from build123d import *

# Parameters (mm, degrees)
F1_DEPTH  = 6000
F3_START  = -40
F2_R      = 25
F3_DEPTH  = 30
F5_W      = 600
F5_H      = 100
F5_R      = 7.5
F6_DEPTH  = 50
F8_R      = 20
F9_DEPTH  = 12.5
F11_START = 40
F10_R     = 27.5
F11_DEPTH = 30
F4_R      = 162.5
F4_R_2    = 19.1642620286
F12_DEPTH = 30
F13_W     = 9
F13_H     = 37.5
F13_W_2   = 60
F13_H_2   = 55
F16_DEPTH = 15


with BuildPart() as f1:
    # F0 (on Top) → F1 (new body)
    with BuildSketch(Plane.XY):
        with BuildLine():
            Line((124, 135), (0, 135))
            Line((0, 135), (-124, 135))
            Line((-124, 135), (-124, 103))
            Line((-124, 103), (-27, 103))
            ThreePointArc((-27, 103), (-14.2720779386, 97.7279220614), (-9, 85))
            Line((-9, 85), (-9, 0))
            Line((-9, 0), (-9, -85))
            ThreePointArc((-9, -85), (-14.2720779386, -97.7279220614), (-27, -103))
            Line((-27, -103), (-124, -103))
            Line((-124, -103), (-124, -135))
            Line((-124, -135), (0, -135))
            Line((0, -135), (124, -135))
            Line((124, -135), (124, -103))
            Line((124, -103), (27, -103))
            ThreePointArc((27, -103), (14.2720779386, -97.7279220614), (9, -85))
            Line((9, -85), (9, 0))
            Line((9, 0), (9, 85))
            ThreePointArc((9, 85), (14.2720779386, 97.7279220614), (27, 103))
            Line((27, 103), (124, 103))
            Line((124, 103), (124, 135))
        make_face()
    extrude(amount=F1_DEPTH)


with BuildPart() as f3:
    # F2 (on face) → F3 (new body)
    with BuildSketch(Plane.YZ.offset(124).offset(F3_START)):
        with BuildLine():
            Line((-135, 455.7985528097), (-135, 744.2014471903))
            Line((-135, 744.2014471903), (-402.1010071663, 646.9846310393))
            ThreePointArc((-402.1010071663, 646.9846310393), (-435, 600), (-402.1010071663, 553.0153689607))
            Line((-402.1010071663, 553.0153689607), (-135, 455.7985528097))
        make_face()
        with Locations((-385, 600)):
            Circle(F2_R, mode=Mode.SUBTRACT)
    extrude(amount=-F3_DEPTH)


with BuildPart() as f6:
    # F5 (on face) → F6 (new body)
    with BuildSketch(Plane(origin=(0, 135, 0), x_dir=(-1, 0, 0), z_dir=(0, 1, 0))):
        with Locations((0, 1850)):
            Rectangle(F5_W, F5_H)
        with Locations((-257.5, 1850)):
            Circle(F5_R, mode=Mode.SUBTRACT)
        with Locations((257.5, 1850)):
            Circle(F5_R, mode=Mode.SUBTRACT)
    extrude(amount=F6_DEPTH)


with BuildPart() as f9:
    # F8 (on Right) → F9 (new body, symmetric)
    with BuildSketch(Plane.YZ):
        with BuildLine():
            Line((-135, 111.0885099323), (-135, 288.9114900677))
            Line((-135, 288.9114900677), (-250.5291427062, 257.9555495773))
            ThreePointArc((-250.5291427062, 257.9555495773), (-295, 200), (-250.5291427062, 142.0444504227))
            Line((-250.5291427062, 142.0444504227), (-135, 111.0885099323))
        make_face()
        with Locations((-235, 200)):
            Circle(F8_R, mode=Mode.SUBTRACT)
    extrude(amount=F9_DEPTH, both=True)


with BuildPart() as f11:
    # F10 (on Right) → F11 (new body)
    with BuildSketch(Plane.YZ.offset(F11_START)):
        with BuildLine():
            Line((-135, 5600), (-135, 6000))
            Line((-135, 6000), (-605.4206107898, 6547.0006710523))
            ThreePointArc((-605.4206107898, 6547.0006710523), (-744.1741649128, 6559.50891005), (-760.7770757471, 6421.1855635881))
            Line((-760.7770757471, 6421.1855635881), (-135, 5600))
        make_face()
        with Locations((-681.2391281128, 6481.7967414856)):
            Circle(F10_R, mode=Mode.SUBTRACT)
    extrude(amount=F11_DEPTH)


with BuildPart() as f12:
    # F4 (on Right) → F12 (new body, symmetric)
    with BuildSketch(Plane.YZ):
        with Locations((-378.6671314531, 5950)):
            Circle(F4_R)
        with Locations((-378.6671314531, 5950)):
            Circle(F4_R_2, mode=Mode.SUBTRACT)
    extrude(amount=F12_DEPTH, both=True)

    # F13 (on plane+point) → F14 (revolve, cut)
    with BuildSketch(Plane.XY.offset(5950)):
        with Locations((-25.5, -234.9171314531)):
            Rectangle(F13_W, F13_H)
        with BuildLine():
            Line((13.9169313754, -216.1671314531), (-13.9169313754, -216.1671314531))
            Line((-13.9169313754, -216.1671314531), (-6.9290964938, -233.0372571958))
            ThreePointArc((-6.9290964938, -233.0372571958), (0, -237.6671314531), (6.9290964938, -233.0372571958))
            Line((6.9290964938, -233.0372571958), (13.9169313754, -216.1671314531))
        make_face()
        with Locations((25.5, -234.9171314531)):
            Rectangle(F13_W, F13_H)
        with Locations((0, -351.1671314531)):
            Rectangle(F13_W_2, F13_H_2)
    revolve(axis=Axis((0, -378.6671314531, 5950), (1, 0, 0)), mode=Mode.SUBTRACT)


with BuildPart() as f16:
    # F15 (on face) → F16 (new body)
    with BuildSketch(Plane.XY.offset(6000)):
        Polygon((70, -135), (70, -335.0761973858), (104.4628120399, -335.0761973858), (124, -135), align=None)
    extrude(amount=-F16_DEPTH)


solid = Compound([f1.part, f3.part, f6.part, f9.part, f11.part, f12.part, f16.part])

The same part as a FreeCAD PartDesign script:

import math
import FreeCAD as App
import Part
import Sketcher

V = App.Vector
Q = App.Units.Quantity

doc = App.newDocument("Part")
body = doc.addObject("PartDesign::Body", "Body")

# Sketch on XY plane
sketch1 = body.newObject("Sketcher::SketchObject", "Sketch")
sketch1.AttachmentSupport = (doc.getObject("XY_Plane"), [""])
sketch1.MapMode = "FlatFace"
sketch1.addGeometry([
    Part.LineSegment(V(124, 135, 0), V(-124, 135, 0)),  # 0
    Part.LineSegment(V(-124, 135, 0), V(-124, 103, 0)),  # 1
    Part.LineSegment(V(-124, 103, 0), V(-27, 103, 0)),  # 2
    Part.ArcOfCircle(Part.Circle(V(-27, 85, 0), V(0, 0, 1), 18), math.radians(0), math.radians(90)),  # 3
    Part.LineSegment(V(-9, 85, 0), V(-9, -85, 0)),  # 4
    Part.ArcOfCircle(Part.Circle(V(-27, -85, 0), V(0, 0, 1), 18), math.radians(-90), math.radians(0)),  # 5
    Part.LineSegment(V(-27, -103, 0), V(-124, -103, 0)),  # 6
    Part.LineSegment(V(-124, -103, 0), V(-124, -135, 0)),  # 7
    Part.LineSegment(V(-124, -135, 0), V(124, -135, 0)),  # 8
    Part.LineSegment(V(124, -135, 0), V(124, -103, 0)),  # 9
    Part.LineSegment(V(124, -103, 0), V(27, -103, 0)),  # 10
    Part.ArcOfCircle(Part.Circle(V(27, -85, 0), V(0, 0, 1), 18), math.radians(180), math.radians(270)),  # 11
    Part.LineSegment(V(9, -85, 0), V(9, 85, 0)),  # 12
    Part.ArcOfCircle(Part.Circle(V(27, 85, 0), V(0, 0, 1), 18), math.radians(90), math.radians(180)),  # 13
    Part.LineSegment(V(27, 103, 0), V(124, 103, 0)),  # 14
    Part.LineSegment(V(124, 103, 0), V(124, 135, 0)),  # 15
], False)
sketch1.addConstraint([
    Sketcher.Constraint("Coincident", 0, 2, 1, 1),
    Sketcher.Constraint("Coincident", 1, 2, 2, 1),
    Sketcher.Constraint("Tangent", 2, 2, 3, 2),
    Sketcher.Constraint("Tangent", 3, 1, 4, 1),
    Sketcher.Constraint("Tangent", 4, 2, 5, 2),
    Sketcher.Constraint("Tangent", 5, 1, 6, 1),
    Sketcher.Constraint("Coincident", 6, 2, 7, 1),
    Sketcher.Constraint("Coincident", 7, 2, 8, 1),
    Sketcher.Constraint("Coincident", 8, 2, 9, 1),
    Sketcher.Constraint("Coincident", 9, 2, 10, 1),
    Sketcher.Constraint("Tangent", 10, 2, 11, 2),
    Sketcher.Constraint("Tangent", 11, 1, 12, 1),
    Sketcher.Constraint("Tangent", 12, 2, 13, 2),
    Sketcher.Constraint("Tangent", 13, 1, 14, 1),
    Sketcher.Constraint("Coincident", 14, 2, 15, 1),
    Sketcher.Constraint("Coincident", 15, 2, 0, 1),
    Sketcher.Constraint("Horizontal", 0),
    Sketcher.Constraint("Vertical", 1),
    Sketcher.Constraint("Horizontal", 2),
    Sketcher.Constraint("Vertical", 4),
    Sketcher.Constraint("Horizontal", 6),
    Sketcher.Constraint("Vertical", 7),
    Sketcher.Constraint("Horizontal", 8),
    Sketcher.Constraint("Vertical", 9),
    Sketcher.Constraint("Horizontal", 10),
    Sketcher.Constraint("Vertical", 12),
    Sketcher.Constraint("Horizontal", 14),
    Sketcher.Constraint("Vertical", 15),
    Sketcher.Constraint("Equal", 3, 5),
    Sketcher.Constraint("Equal", 5, 11),
    Sketcher.Constraint("Equal", 11, 13),
    Sketcher.Constraint("Symmetric", 3, 3, 11, 3, -1, 1),
    Sketcher.Constraint("Symmetric", 0, 2, 8, 2, -1, 1),
    Sketcher.Constraint("Symmetric", 6, 2, 14, 2, -1, 1),
    Sketcher.Constraint("Symmetric", 6, 2, 9, 2, -2),
    Sketcher.Constraint("Radius", 3, 18.0),
    Sketcher.Constraint("DistanceX", 0, 2, 0, 1, 248.0),
    Sketcher.Constraint("DistanceX", 2, 1, 2, 2, 97.0),
    Sketcher.Constraint("DistanceY", 1, 2, 1, 1, 32.0),
    Sketcher.Constraint("DistanceY", 4, 2, 4, 1, 170.0),
])
pad1 = body.newObject("PartDesign::Pad", "Pad")
pad1.Profile = sketch1
pad1.Length = 6000
body2 = doc.addObject("PartDesign::Body", "Body001")

# Sketch on YZ plane
sketch2 = body2.newObject("Sketcher::SketchObject", "Sketch001")
sketch2.AttachmentSupport = (doc.getObject("YZ_Plane001"), [""])
sketch2.MapMode = "FlatFace"
sketch2.AttachmentOffset = App.Placement(V(0, 0, 84), App.Rotation())
sketch2.addGeometry([
    Part.LineSegment(V(-135, 456, 0), V(-135, 744, 0)),  # 0
    Part.LineSegment(V(-135, 744, 0), V(-402, 647, 0)),  # 1
    Part.ArcOfCircle(Part.Circle(V(-385, 600, 0), V(0, 0, 1), 50), math.radians(110), math.radians(250)),  # 2
    Part.LineSegment(V(-402, 553, 0), V(-135, 456, 0)),  # 3
    Part.Circle(V(-385, 600, 0), V(0, 0, 1), 25),  # 4
], False)
sketch2.addConstraint([
    Sketcher.Constraint("Coincident", 0, 2, 1, 1),
    Sketcher.Constraint("Tangent", 1, 2, 2, 1),
    Sketcher.Constraint("Tangent", 2, 2, 3, 1),
    Sketcher.Constraint("Coincident", 3, 2, 0, 1),
    Sketcher.Constraint("Vertical", 0),
    Sketcher.Constraint("Coincident", 4, 3, 2, 3),
    Sketcher.Constraint("Vertical", 1, 2, 2, 2),
    Sketcher.Constraint("Diameter", 4, 50.0),
    Sketcher.Constraint("Radius", 2, 50.0),
    Sketcher.Constraint("Angle", 1, Q("-160 deg")),
    Sketcher.Constraint("DistanceX", 2, 3, -1, 1, 385.0),
    Sketcher.Constraint("DistanceY", -1, 1, 2, 3, 600.0),
    Sketcher.Constraint("DistanceX", 0, 2, -1, 1, 135.0),
])
pad2 = body2.newObject("PartDesign::Pad", "Pad001")
pad2.Profile = sketch2
pad2.Length = 30
pad2.Reversed = True
body3 = doc.addObject("PartDesign::Body", "Body002")

# Sketch on XZ plane
sketch3 = body3.newObject("Sketcher::SketchObject", "Sketch002")
sketch3.AttachmentSupport = (doc.getObject("XZ_Plane002"), [""])
sketch3.MapMode = "FlatFace"
sketch3.AttachmentOffset = App.Placement(V(0, 0, -135), App.Rotation())
sketch3.addGeometry([
    Part.LineSegment(V(300, 1900, 0), V(300, 1800, 0)),  # 0
    Part.LineSegment(V(300, 1800, 0), V(-300, 1800, 0)),  # 1
    Part.LineSegment(V(-300, 1800, 0), V(-300, 1900, 0)),  # 2
    Part.LineSegment(V(-300, 1900, 0), V(300, 1900, 0)),  # 3
    Part.Circle(V(258, 1850, 0), V(0, 0, 1), 8),  # 4
    Part.Circle(V(-258, 1850, 0), V(0, 0, 1), 8),  # 5
], False)
sketch3.addConstraint([
    Sketcher.Constraint("Coincident", 0, 2, 1, 1),
    Sketcher.Constraint("Coincident", 1, 2, 2, 1),
    Sketcher.Constraint("Coincident", 2, 2, 3, 1),
    Sketcher.Constraint("Coincident", 3, 2, 0, 1),
    Sketcher.Constraint("Vertical", 0),
    Sketcher.Constraint("Horizontal", 1),
    Sketcher.Constraint("Vertical", 2),
    Sketcher.Constraint("Horizontal", 3),
    Sketcher.Constraint("Equal", 4, 5),
    Sketcher.Constraint("Symmetric", 4, 3, 5, 3, -2),
    Sketcher.Constraint("Diameter", 4, 15.0),
    Sketcher.Constraint("DistanceX", 1, 2, 1, 1, 600.0),
    Sketcher.Constraint("DistanceY", 0, 2, 0, 1, 100.0),
    Sketcher.Constraint("DistanceY", -1, 1, 4, 3, 1850.0),
    Sketcher.Constraint("DistanceX", -1, 1, 0, 2, 300.0),
    Sketcher.Constraint("DistanceY", -1, 1, 0, 2, 1800.0),
    Sketcher.Constraint("DistanceX", 5, 3, 4, 3, 515.0),
])
pad3 = body3.newObject("PartDesign::Pad", "Pad002")
pad3.Profile = sketch3
pad3.Length = 50
pad3.Reversed = True
body4 = doc.addObject("PartDesign::Body", "Body003")

# Sketch on YZ plane
sketch4 = body4.newObject("Sketcher::SketchObject", "Sketch003")
sketch4.AttachmentSupport = (doc.getObject("YZ_Plane003"), [""])
sketch4.MapMode = "FlatFace"
sketch4.addGeometry([
    Part.LineSegment(V(-135, 111, 0), V(-135, 289, 0)),  # 0
    Part.LineSegment(V(-135, 289, 0), V(-251, 258, 0)),  # 1
    Part.ArcOfCircle(Part.Circle(V(-235, 200, 0), V(0, 0, 1), 60), math.radians(105), math.radians(255)),  # 2
    Part.LineSegment(V(-251, 142, 0), V(-135, 111, 0)),  # 3
    Part.Circle(V(-235, 200, 0), V(0, 0, 1), 20),  # 4
], False)
sketch4.addConstraint([
    Sketcher.Constraint("Coincident", 0, 2, 1, 1),
    Sketcher.Constraint("Tangent", 1, 2, 2, 1),
    Sketcher.Constraint("Tangent", 2, 2, 3, 1),
    Sketcher.Constraint("Coincident", 3, 2, 0, 1),
    Sketcher.Constraint("Vertical", 0),
    Sketcher.Constraint("Coincident", 4, 3, 2, 3),
    Sketcher.Constraint("Vertical", 1, 2, 2, 2),
    Sketcher.Constraint("Diameter", 4, 40.0),
    Sketcher.Constraint("Radius", 2, 60.0),
    Sketcher.Constraint("Angle", 1, Q("-165 deg")),
    Sketcher.Constraint("DistanceX", 2, 3, -1, 1, 235.0),
    Sketcher.Constraint("DistanceY", -1, 1, 2, 3, 200.0),
    Sketcher.Constraint("DistanceX", 0, 2, -1, 1, 135.0),
])
pad4 = body4.newObject("PartDesign::Pad", "Pad003")
pad4.Profile = sketch4
pad4.Length = 25
pad4.Midplane = True
body5 = doc.addObject("PartDesign::Body", "Body004")

# Sketch on YZ plane
sketch5 = body5.newObject("Sketcher::SketchObject", "Sketch004")
sketch5.AttachmentSupport = (doc.getObject("YZ_Plane004"), [""])
sketch5.MapMode = "FlatFace"
sketch5.AttachmentOffset = App.Placement(V(0, 0, 40), App.Rotation())
sketch5.addGeometry([
    Part.LineSegment(V(-135, 5600, 0), V(-135, 6000, 0)),  # 0
    Part.LineSegment(V(-135, 6000, 0), V(-605, 6547, 0)),  # 1
    Part.ArcOfCircle(Part.Circle(V(-681, 6482, 0), V(0, 0, 1), 100), math.radians(41), math.radians(217)),  # 2
    Part.LineSegment(V(-761, 6421, 0), V(-135, 5600, 0)),  # 3
    Part.Circle(V(-681, 6482, 0), V(0, 0, 1), 28),  # 4
], False)
sketch5.addConstraint([
    Sketcher.Constraint("Coincident", 0, 2, 1, 1),
    Sketcher.Constraint("Tangent", 1, 2, 2, 1),
    Sketcher.Constraint("Tangent", 2, 2, 3, 1),
    Sketcher.Constraint("Coincident", 3, 2, 0, 1),
    Sketcher.Constraint("Vertical", 0),
    Sketcher.Constraint("Coincident", 4, 3, 2, 3),
    Sketcher.Constraint("Diameter", 4, 55.0),
    Sketcher.Constraint("Radius", 2, 100.0),
    Sketcher.Constraint("DistanceY", 0, 1, 0, 2, 400.0),
    Sketcher.Constraint("DistanceX", 0, 2, -1, 1, 135.0),
    Sketcher.Constraint("DistanceY", -1, 1, 0, 2, 6000.0),
    Sketcher.Constraint("Distance", 3, 1032.445),
    Sketcher.Constraint("DistanceX", 2, 3, -1, 1, 681.239128),
])
pad5 = body5.newObject("PartDesign::Pad", "Pad004")
pad5.Profile = sketch5
pad5.Length = 30
body6 = doc.addObject("PartDesign::Body", "Body005")

# Sketch on YZ plane
sketch6 = body6.newObject("Sketcher::SketchObject", "Sketch005")
sketch6.AttachmentSupport = (doc.getObject("YZ_Plane005"), [""])
sketch6.MapMode = "FlatFace"
sketch6.addGeometry([
    Part.Circle(V(-379, 5950, 0), V(0, 0, 1), 162),
    Part.Circle(V(-379, 5950, 0), V(0, 0, 1), 19),
], False)
sketch6.addConstraint([
    Sketcher.Constraint("Coincident", 1, 3, 0, 3),
    Sketcher.Constraint("Diameter", 0, 325.0),
    Sketcher.Constraint("DistanceY", -1, 1, 0, 3, 5950.0),
    Sketcher.Constraint("Diameter", 1, 38.328524),
    Sketcher.Constraint("DistanceX", 0, 3, -1, 1, 378.667131),
])
pad6 = body6.newObject("PartDesign::Pad", "Pad005")
pad6.Profile = sketch6
pad6.Length = 60
pad6.Midplane = True

# Sketch on XY plane
sketch7 = body6.newObject("Sketcher::SketchObject", "Sketch006")
sketch7.AttachmentSupport = (doc.getObject("XY_Plane005"), [""])
sketch7.MapMode = "FlatFace"
sketch7.AttachmentOffset = App.Placement(V(0, 0, 5950), App.Rotation())
sketch7.addGeometry([
    Part.LineSegment(V(-30, -216, 0), V(-30, -254, 0)),  # 0
    Part.LineSegment(V(-30, -254, 0), V(-21, -254, 0)),  # 1
    Part.LineSegment(V(-21, -254, 0), V(-21, -216, 0)),  # 2
    Part.LineSegment(V(-21, -216, 0), V(-30, -216, 0)),  # 3
    Part.LineSegment(V(14, -216, 0), V(-14, -216, 0)),  # 4
    Part.LineSegment(V(-14, -216, 0), V(-7, -233, 0)),  # 5
    Part.ArcOfCircle(Part.Circle(V(0, -230, 0), V(0, 0, 1), 8), math.radians(-157), math.radians(-23)),  # 6
    Part.LineSegment(V(7, -233, 0), V(14, -216, 0)),  # 7
    Part.LineSegment(V(21, -216, 0), V(21, -254, 0)),  # 8
    Part.LineSegment(V(21, -254, 0), V(30, -254, 0)),  # 9
    Part.LineSegment(V(30, -254, 0), V(30, -216, 0)),  # 10
    Part.LineSegment(V(30, -216, 0), V(21, -216, 0)),  # 11
    Part.LineSegment(V(-30, -324, 0), V(-30, -379, 0)),  # 12
    Part.LineSegment(V(-30, -379, 0), V(30, -379, 0)),  # 13
    Part.LineSegment(V(30, -379, 0), V(30, -324, 0)),  # 14
    Part.LineSegment(V(30, -324, 0), V(-30, -324, 0)),  # 15
], False)
sketch7.addGeometry(Part.LineSegment(V(-30, -379, 0), V(30, -379, 0)), True)  # axis
sketch7.addConstraint([
    Sketcher.Constraint("Coincident", 0, 2, 1, 1),
    Sketcher.Constraint("Coincident", 1, 2, 2, 1),
    Sketcher.Constraint("Coincident", 2, 2, 3, 1),
    Sketcher.Constraint("Coincident", 3, 2, 0, 1),
    Sketcher.Constraint("Coincident", 4, 2, 5, 1),
    Sketcher.Constraint("Tangent", 5, 2, 6, 1),
    Sketcher.Constraint("Tangent", 6, 2, 7, 1),
    Sketcher.Constraint("Coincident", 7, 2, 4, 1),
    Sketcher.Constraint("Coincident", 8, 2, 9, 1),
    Sketcher.Constraint("Coincident", 9, 2, 10, 1),
    Sketcher.Constraint("Coincident", 10, 2, 11, 1),
    Sketcher.Constraint("Coincident", 11, 2, 8, 1),
    Sketcher.Constraint("Coincident", 12, 2, 13, 1),
    Sketcher.Constraint("Coincident", 13, 2, 14, 1),
    Sketcher.Constraint("Coincident", 14, 2, 15, 1),
    Sketcher.Constraint("Coincident", 15, 2, 12, 1),
    Sketcher.Constraint("Vertical", 0),
    Sketcher.Constraint("Horizontal", 1),
    Sketcher.Constraint("Vertical", 2),
    Sketcher.Constraint("Horizontal", 3),
    Sketcher.Constraint("Horizontal", 4),
    Sketcher.Constraint("Vertical", 8),
    Sketcher.Constraint("Horizontal", 9),
    Sketcher.Constraint("Vertical", 10),
    Sketcher.Constraint("Horizontal", 11),
    Sketcher.Constraint("Vertical", 12),
    Sketcher.Constraint("Horizontal", 13),
    Sketcher.Constraint("Vertical", 14),
    Sketcher.Constraint("Horizontal", 15),
    Sketcher.Constraint("Horizontal", 16),
    Sketcher.Constraint("Coincident", 16, 1, 12, 2),
    Sketcher.Constraint("Symmetric", 5, 2, 6, 2, -2),
    Sketcher.Constraint("Symmetric", 1, 2, 8, 2, -2),
    Sketcher.Constraint("Symmetric", 3, 2, 10, 2, -2),
    Sketcher.Constraint("Horizontal", 3, 2, 4, 2),
    Sketcher.Constraint("Vertical", 3, 2, 12, 2),
    Sketcher.Constraint("Vertical", 10, 2, 13, 2),
    Sketcher.Constraint("Vertical", 14, 2, 16, 2),
    Sketcher.Constraint("Radius", 6, 7.5),
    Sketcher.Constraint("DistanceX", 1, 1, 1, 2, 9.0),
    Sketcher.Constraint("DistanceX", 13, 1, 13, 2, 60.0),
    Sketcher.Constraint("DistanceY", 12, 2, 12, 1, 55.0),
    Sketcher.Constraint("DistanceY", 0, 2, 0, 1, 37.5),
    Sketcher.Constraint("Angle", 5, Q("-67.5 deg")),
    Sketcher.Constraint("DistanceY", 6, 3, 2, 2, 14.0),
    Sketcher.Constraint("DistanceY", 12, 2, 0, 2, 125.0),
    Sketcher.Constraint("DistanceY", 6, 3, -1, 1, 230.167131),
])
groove = body6.newObject("PartDesign::Groove", "Groove")
groove.Profile = sketch7
groove.ReferenceAxis = (sketch7, ["Axis0"])
groove.Angle = 360
body7 = doc.addObject("PartDesign::Body", "Body006")

# Sketch on XY plane
sketch8 = body7.newObject("Sketcher::SketchObject", "Sketch007")
sketch8.AttachmentSupport = (doc.getObject("XY_Plane006"), [""])
sketch8.MapMode = "FlatFace"
sketch8.AttachmentOffset = App.Placement(V(0, 0, 6000), App.Rotation())
sketch8.addGeometry([
    Part.LineSegment(V(70, -135, 0), V(70, -335, 0)),
    Part.LineSegment(V(70, -335, 0), V(104, -335, 0)),
    Part.LineSegment(V(104, -335, 0), V(124, -135, 0)),
    Part.LineSegment(V(124, -135, 0), V(70, -135, 0)),
], False)
sketch8.addConstraint([
    Sketcher.Constraint("Coincident", 0, 2, 1, 1),
    Sketcher.Constraint("Coincident", 1, 2, 2, 1),
    Sketcher.Constraint("Coincident", 2, 2, 3, 1),
    Sketcher.Constraint("Coincident", 3, 2, 0, 1),
    Sketcher.Constraint("Vertical", 0),
    Sketcher.Constraint("Horizontal", 1),
    Sketcher.Constraint("Horizontal", 3),
    Sketcher.Constraint("DistanceX", 3, 2, 3, 1, 54.0),
    Sketcher.Constraint("DistanceX", -1, 1, 0, 2, 70.0),
    Sketcher.Constraint("DistanceY", 2, 2, -1, 1, 135.0),
    Sketcher.Constraint("DistanceX", 1, 1, 1, 2, 34.462812),
    Sketcher.Constraint("DistanceY", 0, 2, 0, 1, 200.076197),
])
pad7 = body7.newObject("PartDesign::Pad", "Pad006")
pad7.Profile = sketch8
pad7.Length = 15
pad7.Reversed = True

doc.recompute()
